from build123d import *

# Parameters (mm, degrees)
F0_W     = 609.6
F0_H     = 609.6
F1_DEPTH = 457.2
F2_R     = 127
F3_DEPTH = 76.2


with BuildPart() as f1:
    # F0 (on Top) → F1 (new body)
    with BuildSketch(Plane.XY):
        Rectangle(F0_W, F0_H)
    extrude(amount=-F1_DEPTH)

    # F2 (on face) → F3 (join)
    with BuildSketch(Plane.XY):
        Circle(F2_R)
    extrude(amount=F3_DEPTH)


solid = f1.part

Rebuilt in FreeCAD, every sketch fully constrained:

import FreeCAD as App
import Part
import Sketcher

V = App.Vector
Q = App.Units.Quantity

doc = App.newDocument("Part")
params = doc.addObject("Spreadsheet::Sheet", "Params")
for row, (alias, value) in enumerate([
    ("sketch1_width", "24 in"),
    ("pad1_length", "18 in"),
    ("sketch2_diameter", "10 in"),
    ("pad2_length", "3 in"),
], start=1):
    params.set(f"A{row}", alias)
    params.set(f"B{row}", "=" + value)
    params.setAlias(f"B{row}", alias)

body = doc.addObject("PartDesign::Body", "Body")

# Sketch on XY plane
sketch1 = body.newObject("Sketcher::SketchObject", "Sketch")
sketch1.AttachmentSupport = (doc.getObject("XY_Plane"), [""])
sketch1.MapMode = "FlatFace"
sketch1.addGeometry([
    Part.LineSegment(V(-305, 305, 0), V(-305, -305, 0)),
    Part.LineSegment(V(-305, -305, 0), V(305, -305, 0)),
    Part.LineSegment(V(305, -305, 0), V(305, 305, 0)),
    Part.LineSegment(V(305, 305, 0), V(-305, 305, 0)),
], False)
sketch1.addConstraint([
    Sketcher.Constraint("Coincident", 0, 2, 1, 1),
    Sketcher.Constraint("Coincident", 1, 2, 2, 1),
    Sketcher.Constraint("Coincident", 2, 2, 3, 1),
    Sketcher.Constraint("Coincident", 3, 2, 0, 1),
    Sketcher.Constraint("Vertical", 0),
    Sketcher.Constraint("Horizontal", 1),
    Sketcher.Constraint("Vertical", 2),
    Sketcher.Constraint("Horizontal", 3),
    Sketcher.Constraint("Symmetric", 0, 2, 2, 2, -1, 1),
    Sketcher.Constraint("Equal", 3, 0),
    Sketcher.Constraint("DistanceX", 1, 1, 1, 2, Q("24 in")),
])
sketch1.setExpression("Constraints[10]", "Params.sketch1_width")
pad1 = body.newObject("PartDesign::Pad", "Pad")
pad1.Profile = sketch1
pad1.setExpression("Length", "Params.pad1_length")
pad1.Reversed = True

# Sketch on XY plane
sketch2 = body.newObject("Sketcher::SketchObject", "Sketch001")
sketch2.AttachmentSupport = (doc.getObject("XY_Plane"), [""])
sketch2.MapMode = "FlatFace"
sketch2.addGeometry(Part.Circle(V(0, 0, 0), V(0, 0, 1), 127), False)
sketch2.addConstraint([
    Sketcher.Constraint("Coincident", 0, 3, -1, 1),
    Sketcher.Constraint("Diameter", 0, Q("10 in")),
])
sketch2.setExpression("Constraints[1]", "Params.sketch2_diameter")
pad2 = body.newObject("PartDesign::Pad", "Pad001")
pad2.Profile = sketch2
pad2.setExpression("Length", "Params.pad2_length")

doc.recompute()
